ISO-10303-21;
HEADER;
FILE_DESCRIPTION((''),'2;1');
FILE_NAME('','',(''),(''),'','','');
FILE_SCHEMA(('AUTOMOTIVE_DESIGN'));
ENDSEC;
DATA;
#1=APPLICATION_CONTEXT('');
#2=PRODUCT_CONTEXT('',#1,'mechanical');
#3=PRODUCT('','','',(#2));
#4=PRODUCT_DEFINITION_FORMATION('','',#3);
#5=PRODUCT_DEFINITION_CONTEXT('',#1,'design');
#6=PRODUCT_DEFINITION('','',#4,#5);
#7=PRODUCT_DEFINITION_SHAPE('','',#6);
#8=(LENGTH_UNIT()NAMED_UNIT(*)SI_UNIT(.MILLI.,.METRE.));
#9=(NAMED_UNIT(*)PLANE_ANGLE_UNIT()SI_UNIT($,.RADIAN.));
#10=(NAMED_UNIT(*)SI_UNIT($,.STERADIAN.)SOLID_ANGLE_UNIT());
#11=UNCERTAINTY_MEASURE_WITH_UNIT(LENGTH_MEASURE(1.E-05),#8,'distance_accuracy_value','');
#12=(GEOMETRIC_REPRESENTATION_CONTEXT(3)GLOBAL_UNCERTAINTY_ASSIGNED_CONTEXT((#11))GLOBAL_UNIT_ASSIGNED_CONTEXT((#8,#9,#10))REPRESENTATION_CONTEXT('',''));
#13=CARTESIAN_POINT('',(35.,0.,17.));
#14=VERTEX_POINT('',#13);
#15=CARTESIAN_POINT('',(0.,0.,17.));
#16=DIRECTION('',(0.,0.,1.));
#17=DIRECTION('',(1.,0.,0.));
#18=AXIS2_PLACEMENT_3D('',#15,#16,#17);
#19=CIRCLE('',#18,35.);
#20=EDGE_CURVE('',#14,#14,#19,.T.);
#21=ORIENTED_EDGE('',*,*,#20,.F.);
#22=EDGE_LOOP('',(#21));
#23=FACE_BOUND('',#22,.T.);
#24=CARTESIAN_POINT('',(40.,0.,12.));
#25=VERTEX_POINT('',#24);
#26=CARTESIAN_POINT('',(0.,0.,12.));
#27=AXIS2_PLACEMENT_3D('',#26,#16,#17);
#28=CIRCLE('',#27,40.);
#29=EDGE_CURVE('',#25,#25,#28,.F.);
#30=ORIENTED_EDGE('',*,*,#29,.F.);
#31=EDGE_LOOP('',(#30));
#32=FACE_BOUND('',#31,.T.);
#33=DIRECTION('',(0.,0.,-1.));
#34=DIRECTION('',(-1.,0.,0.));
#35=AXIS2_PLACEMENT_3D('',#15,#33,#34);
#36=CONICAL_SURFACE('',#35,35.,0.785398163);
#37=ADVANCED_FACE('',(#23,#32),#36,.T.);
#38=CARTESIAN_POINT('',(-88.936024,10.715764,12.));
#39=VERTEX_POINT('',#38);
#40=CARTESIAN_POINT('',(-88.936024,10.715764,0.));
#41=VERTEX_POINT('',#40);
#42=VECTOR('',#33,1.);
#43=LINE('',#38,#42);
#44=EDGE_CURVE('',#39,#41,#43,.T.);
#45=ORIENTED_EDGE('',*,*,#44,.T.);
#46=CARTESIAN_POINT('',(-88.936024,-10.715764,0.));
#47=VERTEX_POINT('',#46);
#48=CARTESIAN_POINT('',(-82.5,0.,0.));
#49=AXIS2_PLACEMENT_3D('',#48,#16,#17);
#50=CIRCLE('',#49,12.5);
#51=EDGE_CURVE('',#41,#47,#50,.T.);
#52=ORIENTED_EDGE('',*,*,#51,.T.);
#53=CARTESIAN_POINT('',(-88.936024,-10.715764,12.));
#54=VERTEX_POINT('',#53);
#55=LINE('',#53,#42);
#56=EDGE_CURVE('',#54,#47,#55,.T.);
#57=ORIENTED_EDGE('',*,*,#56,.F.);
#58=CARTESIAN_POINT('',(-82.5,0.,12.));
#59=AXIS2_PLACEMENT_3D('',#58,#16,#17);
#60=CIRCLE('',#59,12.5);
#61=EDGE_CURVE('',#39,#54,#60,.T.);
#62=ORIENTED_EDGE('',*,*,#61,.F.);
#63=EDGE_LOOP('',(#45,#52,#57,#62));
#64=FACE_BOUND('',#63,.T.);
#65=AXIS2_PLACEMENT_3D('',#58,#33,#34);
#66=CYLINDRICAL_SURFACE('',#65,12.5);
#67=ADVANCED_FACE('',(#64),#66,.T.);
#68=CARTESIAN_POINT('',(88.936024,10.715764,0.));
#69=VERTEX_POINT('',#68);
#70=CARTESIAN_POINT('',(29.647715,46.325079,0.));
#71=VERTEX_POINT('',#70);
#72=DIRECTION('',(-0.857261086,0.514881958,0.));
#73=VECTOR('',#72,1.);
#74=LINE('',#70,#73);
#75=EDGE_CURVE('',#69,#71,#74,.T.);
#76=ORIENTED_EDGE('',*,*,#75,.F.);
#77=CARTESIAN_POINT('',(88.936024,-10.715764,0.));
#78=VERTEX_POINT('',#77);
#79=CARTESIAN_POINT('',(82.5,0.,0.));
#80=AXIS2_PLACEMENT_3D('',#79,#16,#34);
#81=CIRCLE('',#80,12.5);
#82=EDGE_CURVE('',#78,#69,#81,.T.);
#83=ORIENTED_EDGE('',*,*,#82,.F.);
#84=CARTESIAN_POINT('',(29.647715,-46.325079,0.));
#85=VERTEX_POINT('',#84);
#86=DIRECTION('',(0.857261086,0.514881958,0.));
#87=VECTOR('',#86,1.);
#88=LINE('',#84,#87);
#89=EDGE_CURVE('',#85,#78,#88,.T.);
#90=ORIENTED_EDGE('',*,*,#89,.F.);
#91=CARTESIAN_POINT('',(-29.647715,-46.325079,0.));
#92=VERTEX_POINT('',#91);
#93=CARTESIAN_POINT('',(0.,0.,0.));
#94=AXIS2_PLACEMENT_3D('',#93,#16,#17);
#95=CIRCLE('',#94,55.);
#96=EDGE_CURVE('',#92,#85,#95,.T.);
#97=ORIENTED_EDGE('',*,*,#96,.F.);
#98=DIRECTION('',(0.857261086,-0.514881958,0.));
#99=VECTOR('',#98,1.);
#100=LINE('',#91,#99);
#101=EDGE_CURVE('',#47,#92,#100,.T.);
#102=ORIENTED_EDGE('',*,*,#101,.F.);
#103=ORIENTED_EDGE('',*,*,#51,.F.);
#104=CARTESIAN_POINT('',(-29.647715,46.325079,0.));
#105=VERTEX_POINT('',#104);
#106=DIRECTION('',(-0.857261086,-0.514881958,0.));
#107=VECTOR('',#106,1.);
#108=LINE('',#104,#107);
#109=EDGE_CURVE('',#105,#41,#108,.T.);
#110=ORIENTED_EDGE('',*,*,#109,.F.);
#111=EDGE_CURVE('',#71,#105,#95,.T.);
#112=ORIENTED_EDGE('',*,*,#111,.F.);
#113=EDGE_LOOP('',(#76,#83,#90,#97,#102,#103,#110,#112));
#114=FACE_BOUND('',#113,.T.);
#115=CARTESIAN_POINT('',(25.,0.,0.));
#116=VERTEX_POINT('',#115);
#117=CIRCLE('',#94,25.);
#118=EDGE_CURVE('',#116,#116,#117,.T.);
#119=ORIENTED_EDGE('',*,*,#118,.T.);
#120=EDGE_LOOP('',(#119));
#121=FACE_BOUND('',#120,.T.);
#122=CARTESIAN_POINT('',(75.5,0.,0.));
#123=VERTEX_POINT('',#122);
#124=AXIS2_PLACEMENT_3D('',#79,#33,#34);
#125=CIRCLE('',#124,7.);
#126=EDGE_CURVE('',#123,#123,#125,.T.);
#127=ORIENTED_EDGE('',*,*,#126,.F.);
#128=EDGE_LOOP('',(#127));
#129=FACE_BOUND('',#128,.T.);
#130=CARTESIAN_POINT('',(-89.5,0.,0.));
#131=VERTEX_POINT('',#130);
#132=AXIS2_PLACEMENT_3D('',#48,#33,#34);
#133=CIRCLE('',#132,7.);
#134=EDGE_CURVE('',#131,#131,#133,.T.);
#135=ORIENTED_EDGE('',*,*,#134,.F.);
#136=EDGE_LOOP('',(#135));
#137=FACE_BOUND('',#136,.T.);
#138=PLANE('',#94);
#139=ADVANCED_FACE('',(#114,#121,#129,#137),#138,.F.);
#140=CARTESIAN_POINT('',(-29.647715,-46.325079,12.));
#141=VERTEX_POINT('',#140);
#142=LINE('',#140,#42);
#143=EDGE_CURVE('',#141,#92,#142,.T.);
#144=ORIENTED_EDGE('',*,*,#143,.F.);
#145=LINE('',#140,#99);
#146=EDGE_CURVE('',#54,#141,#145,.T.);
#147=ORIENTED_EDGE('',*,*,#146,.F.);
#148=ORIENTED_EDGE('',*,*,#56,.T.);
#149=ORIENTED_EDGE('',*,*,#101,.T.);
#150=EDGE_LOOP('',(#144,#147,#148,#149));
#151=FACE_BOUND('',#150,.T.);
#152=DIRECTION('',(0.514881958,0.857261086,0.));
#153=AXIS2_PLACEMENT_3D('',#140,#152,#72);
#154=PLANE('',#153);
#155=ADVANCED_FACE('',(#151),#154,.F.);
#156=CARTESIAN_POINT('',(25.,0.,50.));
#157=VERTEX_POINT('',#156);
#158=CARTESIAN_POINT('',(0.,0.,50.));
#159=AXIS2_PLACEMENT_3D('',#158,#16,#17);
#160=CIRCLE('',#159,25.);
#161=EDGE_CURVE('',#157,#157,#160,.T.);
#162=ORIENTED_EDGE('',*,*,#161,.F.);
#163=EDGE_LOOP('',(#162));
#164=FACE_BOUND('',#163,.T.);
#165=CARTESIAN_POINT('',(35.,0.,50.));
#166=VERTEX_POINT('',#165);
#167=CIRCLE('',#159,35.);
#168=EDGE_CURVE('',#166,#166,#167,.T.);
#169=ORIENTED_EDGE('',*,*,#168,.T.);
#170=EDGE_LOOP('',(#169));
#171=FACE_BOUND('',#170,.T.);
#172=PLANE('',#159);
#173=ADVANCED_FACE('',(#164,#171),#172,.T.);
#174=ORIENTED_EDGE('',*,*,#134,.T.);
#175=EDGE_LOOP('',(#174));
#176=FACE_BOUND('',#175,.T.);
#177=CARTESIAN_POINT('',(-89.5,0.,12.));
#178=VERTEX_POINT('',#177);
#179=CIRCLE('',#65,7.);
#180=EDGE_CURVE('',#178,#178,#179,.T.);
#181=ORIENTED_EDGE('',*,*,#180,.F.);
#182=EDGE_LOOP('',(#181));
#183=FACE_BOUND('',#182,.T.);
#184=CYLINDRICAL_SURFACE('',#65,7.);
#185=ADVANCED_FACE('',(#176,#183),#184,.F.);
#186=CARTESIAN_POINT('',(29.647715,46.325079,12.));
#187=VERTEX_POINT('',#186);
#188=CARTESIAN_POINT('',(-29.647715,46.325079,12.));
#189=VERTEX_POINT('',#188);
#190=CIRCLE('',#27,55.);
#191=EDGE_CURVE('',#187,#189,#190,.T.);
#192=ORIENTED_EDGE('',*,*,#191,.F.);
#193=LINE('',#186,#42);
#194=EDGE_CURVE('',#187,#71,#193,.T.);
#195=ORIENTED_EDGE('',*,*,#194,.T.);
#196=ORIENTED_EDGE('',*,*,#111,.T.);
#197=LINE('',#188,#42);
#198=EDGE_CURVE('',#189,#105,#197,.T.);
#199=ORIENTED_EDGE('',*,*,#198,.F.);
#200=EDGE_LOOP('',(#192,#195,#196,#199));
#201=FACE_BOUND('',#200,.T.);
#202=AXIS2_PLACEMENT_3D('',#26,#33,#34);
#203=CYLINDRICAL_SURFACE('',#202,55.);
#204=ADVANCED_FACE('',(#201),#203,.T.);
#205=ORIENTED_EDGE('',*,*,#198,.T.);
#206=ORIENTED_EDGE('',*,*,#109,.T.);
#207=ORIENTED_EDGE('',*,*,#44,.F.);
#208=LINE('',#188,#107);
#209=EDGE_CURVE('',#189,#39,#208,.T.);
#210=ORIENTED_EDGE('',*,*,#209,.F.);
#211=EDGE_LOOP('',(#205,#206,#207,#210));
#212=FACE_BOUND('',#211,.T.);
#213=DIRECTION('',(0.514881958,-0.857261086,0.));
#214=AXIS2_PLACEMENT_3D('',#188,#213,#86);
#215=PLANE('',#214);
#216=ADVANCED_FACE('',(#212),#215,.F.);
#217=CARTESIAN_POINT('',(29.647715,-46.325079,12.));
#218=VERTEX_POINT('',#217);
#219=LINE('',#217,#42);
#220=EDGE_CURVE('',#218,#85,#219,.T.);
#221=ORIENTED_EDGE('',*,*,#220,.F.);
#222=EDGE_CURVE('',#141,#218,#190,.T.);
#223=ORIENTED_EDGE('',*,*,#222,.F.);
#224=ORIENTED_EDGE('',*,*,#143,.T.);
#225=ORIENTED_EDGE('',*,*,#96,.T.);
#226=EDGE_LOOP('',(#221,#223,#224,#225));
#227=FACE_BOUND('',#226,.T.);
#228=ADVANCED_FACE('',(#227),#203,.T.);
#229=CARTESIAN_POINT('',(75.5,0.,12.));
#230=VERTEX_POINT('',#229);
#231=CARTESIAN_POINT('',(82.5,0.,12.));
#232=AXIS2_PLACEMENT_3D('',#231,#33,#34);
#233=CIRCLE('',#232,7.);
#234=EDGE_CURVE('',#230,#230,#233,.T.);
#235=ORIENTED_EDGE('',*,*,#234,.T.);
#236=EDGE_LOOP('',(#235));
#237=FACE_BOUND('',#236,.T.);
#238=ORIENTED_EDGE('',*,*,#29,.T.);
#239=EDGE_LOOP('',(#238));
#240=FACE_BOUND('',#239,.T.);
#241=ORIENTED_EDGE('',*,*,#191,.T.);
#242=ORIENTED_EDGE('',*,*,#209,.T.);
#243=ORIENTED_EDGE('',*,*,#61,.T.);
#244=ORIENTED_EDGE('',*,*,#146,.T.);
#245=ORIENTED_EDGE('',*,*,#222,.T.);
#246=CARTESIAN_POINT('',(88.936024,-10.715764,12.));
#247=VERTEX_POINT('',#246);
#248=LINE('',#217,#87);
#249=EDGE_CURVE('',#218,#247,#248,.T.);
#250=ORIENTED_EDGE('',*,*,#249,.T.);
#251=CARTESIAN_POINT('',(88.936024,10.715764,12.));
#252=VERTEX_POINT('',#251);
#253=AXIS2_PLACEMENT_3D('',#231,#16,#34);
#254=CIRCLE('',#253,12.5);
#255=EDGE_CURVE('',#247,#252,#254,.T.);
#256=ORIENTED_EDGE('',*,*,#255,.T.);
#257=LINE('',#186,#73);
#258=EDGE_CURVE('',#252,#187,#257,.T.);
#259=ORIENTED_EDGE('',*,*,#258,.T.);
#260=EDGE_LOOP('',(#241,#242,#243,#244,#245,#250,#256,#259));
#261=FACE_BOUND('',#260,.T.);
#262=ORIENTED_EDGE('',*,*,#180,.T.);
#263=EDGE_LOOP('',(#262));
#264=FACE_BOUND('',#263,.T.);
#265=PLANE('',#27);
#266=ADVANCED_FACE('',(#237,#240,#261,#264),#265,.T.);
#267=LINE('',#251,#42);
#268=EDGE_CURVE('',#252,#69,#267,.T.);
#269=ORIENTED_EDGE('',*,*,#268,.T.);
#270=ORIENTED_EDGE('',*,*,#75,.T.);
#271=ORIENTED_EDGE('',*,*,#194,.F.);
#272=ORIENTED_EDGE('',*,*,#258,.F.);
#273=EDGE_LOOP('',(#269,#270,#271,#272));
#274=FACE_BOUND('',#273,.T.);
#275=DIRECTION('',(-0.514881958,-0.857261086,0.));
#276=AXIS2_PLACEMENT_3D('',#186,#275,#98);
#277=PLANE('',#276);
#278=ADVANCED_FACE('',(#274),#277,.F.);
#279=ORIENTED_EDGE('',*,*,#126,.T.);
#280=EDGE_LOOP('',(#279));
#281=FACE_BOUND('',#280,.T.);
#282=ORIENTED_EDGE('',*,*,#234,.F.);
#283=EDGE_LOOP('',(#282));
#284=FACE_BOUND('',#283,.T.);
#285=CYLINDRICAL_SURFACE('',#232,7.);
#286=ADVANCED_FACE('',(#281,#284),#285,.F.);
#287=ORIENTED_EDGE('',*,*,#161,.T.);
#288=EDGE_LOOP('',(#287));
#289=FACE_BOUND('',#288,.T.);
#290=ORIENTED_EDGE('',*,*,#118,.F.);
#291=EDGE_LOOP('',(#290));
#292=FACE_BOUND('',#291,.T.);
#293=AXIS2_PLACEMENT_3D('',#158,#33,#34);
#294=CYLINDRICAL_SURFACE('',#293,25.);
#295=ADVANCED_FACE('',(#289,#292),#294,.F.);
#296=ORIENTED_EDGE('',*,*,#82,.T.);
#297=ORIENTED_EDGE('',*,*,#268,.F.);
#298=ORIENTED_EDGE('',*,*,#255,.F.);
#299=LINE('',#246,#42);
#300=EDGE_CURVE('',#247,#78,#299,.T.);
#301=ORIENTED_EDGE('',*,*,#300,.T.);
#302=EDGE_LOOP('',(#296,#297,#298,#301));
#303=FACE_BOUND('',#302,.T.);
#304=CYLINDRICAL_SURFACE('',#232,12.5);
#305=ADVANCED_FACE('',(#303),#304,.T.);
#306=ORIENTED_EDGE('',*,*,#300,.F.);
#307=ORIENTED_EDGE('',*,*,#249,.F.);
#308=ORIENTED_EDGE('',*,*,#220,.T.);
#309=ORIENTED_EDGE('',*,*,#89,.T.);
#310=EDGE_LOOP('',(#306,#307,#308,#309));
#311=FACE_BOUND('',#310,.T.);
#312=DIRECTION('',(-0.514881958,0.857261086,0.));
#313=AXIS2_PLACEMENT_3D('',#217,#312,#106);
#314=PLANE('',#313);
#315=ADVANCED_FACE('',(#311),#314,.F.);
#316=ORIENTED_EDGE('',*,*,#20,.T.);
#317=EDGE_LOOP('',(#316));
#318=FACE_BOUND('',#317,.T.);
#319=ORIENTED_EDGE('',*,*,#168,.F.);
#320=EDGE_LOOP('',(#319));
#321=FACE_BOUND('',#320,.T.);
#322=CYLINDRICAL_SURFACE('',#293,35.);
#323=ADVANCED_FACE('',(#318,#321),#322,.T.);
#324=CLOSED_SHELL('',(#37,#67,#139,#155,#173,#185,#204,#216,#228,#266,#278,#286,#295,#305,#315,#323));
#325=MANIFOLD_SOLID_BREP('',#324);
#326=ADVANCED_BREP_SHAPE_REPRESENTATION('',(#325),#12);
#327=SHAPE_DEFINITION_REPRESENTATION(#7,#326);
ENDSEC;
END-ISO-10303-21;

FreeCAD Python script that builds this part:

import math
import FreeCAD as App
import Part
import Sketcher
Q = App.Units.Quantity


def edges_at(feature, points):
    """Names of the edges that pass closest to the given points."""
    edges = feature.Shape.Edges
    near = lambda p: min(range(len(edges)), key=lambda i: edges[i].distToShape(Part.Vertex(*p))[0])
    return sorted({f"Edge{near(p) + 1}" for p in points})

doc = App.newDocument("Part")
params = doc.addObject("Spreadsheet::Sheet", "Params")
for row, (alias, value) in enumerate([
    ("sketch1_diameter", "70 mm"),
    ("sketch1_diameter2", "50 mm"),
    ("pad1_length", "50 mm"),
    ("sketch2_diameter", "70 mm"),
    ("sketch2_radius", "55 mm"),
    ("sketch2_radius2", "12.5 mm"),
    ("pad2_length", "12 mm"),
    ("sketch3_diameter", "14 mm"),
    ("pocket1_length", "12 mm"),
    ("chamfer_size", "5 mm"),
], start=1):
    params.set(f"A{row}", alias)
    params.set(f"B{row}", "=" + value)
    params.setAlias(f"B{row}", alias)

body = doc.addObject("PartDesign::Body", "Body")

sketch1 = doc.addObject("Sketcher::SketchObject", "Sketch")
body.addObject(sketch1)
sketch1.AttachmentSupport = (doc.XY_Plane, [""])
sketch1.MapMode = "FlatFace"
sketch1.addGeometry([
    Part.Circle(App.Vector(0, 0, 0), App.Vector(0, 0, 1), 35),
    Part.Circle(App.Vector(0, 0, 0), App.Vector(0, 0, 1), 25),
], False)
sketch1.addConstraint([
    Sketcher.Constraint("Coincident", 0, 3, -1, 1),
    Sketcher.Constraint("Coincident", 1, 3, -1, 1),
    Sketcher.Constraint("Diameter", 0, Q("70 mm")),
    Sketcher.Constraint("Diameter", 1, Q("50 mm")),
])
sketch1.setExpression("Constraints[2]", "Params.sketch1_diameter")
sketch1.setExpression("Constraints[3]", "Params.sketch1_diameter2")
pad1 = doc.addObject("PartDesign::Pad", "Pad")
body.addObject(pad1)
pad1.Profile = sketch1
pad1.setExpression("Length", "Params.pad1_length")

sketch2 = doc.addObject("Sketcher::SketchObject", "Sketch001")
body.addObject(sketch2)
sketch2.AttachmentSupport = (doc.XY_Plane, [""])
sketch2.MapMode = "FlatFace"
sketch2.addGeometry([
    Part.LineSegment(App.Vector(-89, -11, 0), App.Vector(-30, -46, 0)),
    Part.ArcOfCircle(Part.Circle(App.Vector(0, 0, 0), App.Vector(0, 0, 1), 55), math.radians(-123), math.radians(-57)),
    Part.LineSegment(App.Vector(30, -46, 0), App.Vector(89, -11, 0)),
    Part.ArcOfCircle(Part.Circle(App.Vector(82, 0, 0), App.Vector(0, 0, 1), 13), math.radians(-59), math.radians(59)),
    Part.LineSegment(App.Vector(89, 11, 0), App.Vector(30, 46, 0)),
    Part.ArcOfCircle(Part.Circle(App.Vector(0, 0, 0), App.Vector(0, 0, 1), 55), math.radians(57), math.radians(123)),
    Part.LineSegment(App.Vector(-30, 46, 0), App.Vector(-89, 11, 0)),
    Part.ArcOfCircle(Part.Circle(App.Vector(-82, 0, 0), App.Vector(0, 0, 1), 13), math.radians(121), math.radians(239)),
    Part.Circle(App.Vector(0, 0, 0), App.Vector(0, 0, 1), 35),
], False)
sketch2.addConstraint([
    Sketcher.Constraint("Coincident", 0, 2, 1, 1),
    Sketcher.Constraint("Coincident", 1, 2, 2, 1),
    Sketcher.Constraint("Tangent", 2, 2, 3, 1),
    Sketcher.Constraint("Tangent", 3, 2, 4, 1),
    Sketcher.Constraint("Coincident", 4, 2, 5, 1),
    Sketcher.Constraint("Coincident", 5, 2, 6, 1),
    Sketcher.Constraint("Tangent", 6, 2, 7, 1),
    Sketcher.Constraint("Tangent", 7, 2, 0, 1),
    Sketcher.Constraint("Coincident", 1, 3, -1, 1),
    Sketcher.Constraint("Coincident", 5, 3, -1, 1),
    Sketcher.Constraint("Coincident", 8, 3, -1, 1),
    Sketcher.Constraint("Equal", 1, 5),
    Sketcher.Constraint("Equal", 3, 7),
    Sketcher.Constraint("Symmetric", 3, 3, 7, 3, -1, 1),
    Sketcher.Constraint("Symmetric", 3, 2, 6, 2, -2),
    Sketcher.Constraint("Parallel", 0, 4),
    Sketcher.Constraint("Parallel", 2, 6),
    Sketcher.Constraint("Diameter", 8, Q("70 mm")),
    Sketcher.Constraint("Radius", 1, Q("55 mm")),
    Sketcher.Constraint("Radius", 3, Q("12.5 mm")),
    Sketcher.Constraint("DistanceX", 7, 3, 3, 3, Q("165 mm")),
    Sketcher.Constraint("DistanceY", 0, 2, -1, 1, Q("46.325079 mm")),
])
sketch2.setExpression("Constraints[17]", "Params.sketch2_diameter")
sketch2.setExpression("Constraints[18]", "Params.sketch2_radius")
sketch2.setExpression("Constraints[19]", "Params.sketch2_radius2")
pad2 = doc.addObject("PartDesign::Pad", "Pad001")
body.addObject(pad2)
pad2.Profile = sketch2
pad2.setExpression("Length", "Params.pad2_length")

sketch3 = doc.addObject("Sketcher::SketchObject", "Sketch002")
body.addObject(sketch3)
sketch3.AttachmentSupport = (doc.XY_Plane, [""])
sketch3.MapMode = "FlatFace"
sketch3.addGeometry([
    Part.Circle(App.Vector(82, 0, 0), App.Vector(0, 0, 1), 7),
    Part.Circle(App.Vector(-82, 0, 0), App.Vector(0, 0, 1), 7),
], False)
sketch3.addConstraint([
    Sketcher.Constraint("Equal", 0, 1),
    Sketcher.Constraint("Symmetric", 0, 3, 1, 3, -1, 1),
    Sketcher.Constraint("PointOnObject", 0, 3, -1),
    Sketcher.Constraint("Diameter", 0, Q("14 mm")),
    Sketcher.Constraint("DistanceX", 1, 3, 0, 3, Q("165 mm")),
])
sketch3.setExpression("Constraints[3]", "Params.sketch3_diameter")
pocket1 = doc.addObject("PartDesign::Pocket", "Pocket")
body.addObject(pocket1)
pocket1.Profile = sketch3
pocket1.setExpression("Length", "Params.pocket1_length")
pocket1.Reversed = True
doc.recompute()

chamfer = doc.addObject("PartDesign::Chamfer", "Chamfer")
body.addObject(chamfer)
chamfer.Base = (pocket1, edges_at(pocket1, [(-35, 0, 12)]))
chamfer.setExpression("Size", "Params.chamfer_size")

doc.recompute()
